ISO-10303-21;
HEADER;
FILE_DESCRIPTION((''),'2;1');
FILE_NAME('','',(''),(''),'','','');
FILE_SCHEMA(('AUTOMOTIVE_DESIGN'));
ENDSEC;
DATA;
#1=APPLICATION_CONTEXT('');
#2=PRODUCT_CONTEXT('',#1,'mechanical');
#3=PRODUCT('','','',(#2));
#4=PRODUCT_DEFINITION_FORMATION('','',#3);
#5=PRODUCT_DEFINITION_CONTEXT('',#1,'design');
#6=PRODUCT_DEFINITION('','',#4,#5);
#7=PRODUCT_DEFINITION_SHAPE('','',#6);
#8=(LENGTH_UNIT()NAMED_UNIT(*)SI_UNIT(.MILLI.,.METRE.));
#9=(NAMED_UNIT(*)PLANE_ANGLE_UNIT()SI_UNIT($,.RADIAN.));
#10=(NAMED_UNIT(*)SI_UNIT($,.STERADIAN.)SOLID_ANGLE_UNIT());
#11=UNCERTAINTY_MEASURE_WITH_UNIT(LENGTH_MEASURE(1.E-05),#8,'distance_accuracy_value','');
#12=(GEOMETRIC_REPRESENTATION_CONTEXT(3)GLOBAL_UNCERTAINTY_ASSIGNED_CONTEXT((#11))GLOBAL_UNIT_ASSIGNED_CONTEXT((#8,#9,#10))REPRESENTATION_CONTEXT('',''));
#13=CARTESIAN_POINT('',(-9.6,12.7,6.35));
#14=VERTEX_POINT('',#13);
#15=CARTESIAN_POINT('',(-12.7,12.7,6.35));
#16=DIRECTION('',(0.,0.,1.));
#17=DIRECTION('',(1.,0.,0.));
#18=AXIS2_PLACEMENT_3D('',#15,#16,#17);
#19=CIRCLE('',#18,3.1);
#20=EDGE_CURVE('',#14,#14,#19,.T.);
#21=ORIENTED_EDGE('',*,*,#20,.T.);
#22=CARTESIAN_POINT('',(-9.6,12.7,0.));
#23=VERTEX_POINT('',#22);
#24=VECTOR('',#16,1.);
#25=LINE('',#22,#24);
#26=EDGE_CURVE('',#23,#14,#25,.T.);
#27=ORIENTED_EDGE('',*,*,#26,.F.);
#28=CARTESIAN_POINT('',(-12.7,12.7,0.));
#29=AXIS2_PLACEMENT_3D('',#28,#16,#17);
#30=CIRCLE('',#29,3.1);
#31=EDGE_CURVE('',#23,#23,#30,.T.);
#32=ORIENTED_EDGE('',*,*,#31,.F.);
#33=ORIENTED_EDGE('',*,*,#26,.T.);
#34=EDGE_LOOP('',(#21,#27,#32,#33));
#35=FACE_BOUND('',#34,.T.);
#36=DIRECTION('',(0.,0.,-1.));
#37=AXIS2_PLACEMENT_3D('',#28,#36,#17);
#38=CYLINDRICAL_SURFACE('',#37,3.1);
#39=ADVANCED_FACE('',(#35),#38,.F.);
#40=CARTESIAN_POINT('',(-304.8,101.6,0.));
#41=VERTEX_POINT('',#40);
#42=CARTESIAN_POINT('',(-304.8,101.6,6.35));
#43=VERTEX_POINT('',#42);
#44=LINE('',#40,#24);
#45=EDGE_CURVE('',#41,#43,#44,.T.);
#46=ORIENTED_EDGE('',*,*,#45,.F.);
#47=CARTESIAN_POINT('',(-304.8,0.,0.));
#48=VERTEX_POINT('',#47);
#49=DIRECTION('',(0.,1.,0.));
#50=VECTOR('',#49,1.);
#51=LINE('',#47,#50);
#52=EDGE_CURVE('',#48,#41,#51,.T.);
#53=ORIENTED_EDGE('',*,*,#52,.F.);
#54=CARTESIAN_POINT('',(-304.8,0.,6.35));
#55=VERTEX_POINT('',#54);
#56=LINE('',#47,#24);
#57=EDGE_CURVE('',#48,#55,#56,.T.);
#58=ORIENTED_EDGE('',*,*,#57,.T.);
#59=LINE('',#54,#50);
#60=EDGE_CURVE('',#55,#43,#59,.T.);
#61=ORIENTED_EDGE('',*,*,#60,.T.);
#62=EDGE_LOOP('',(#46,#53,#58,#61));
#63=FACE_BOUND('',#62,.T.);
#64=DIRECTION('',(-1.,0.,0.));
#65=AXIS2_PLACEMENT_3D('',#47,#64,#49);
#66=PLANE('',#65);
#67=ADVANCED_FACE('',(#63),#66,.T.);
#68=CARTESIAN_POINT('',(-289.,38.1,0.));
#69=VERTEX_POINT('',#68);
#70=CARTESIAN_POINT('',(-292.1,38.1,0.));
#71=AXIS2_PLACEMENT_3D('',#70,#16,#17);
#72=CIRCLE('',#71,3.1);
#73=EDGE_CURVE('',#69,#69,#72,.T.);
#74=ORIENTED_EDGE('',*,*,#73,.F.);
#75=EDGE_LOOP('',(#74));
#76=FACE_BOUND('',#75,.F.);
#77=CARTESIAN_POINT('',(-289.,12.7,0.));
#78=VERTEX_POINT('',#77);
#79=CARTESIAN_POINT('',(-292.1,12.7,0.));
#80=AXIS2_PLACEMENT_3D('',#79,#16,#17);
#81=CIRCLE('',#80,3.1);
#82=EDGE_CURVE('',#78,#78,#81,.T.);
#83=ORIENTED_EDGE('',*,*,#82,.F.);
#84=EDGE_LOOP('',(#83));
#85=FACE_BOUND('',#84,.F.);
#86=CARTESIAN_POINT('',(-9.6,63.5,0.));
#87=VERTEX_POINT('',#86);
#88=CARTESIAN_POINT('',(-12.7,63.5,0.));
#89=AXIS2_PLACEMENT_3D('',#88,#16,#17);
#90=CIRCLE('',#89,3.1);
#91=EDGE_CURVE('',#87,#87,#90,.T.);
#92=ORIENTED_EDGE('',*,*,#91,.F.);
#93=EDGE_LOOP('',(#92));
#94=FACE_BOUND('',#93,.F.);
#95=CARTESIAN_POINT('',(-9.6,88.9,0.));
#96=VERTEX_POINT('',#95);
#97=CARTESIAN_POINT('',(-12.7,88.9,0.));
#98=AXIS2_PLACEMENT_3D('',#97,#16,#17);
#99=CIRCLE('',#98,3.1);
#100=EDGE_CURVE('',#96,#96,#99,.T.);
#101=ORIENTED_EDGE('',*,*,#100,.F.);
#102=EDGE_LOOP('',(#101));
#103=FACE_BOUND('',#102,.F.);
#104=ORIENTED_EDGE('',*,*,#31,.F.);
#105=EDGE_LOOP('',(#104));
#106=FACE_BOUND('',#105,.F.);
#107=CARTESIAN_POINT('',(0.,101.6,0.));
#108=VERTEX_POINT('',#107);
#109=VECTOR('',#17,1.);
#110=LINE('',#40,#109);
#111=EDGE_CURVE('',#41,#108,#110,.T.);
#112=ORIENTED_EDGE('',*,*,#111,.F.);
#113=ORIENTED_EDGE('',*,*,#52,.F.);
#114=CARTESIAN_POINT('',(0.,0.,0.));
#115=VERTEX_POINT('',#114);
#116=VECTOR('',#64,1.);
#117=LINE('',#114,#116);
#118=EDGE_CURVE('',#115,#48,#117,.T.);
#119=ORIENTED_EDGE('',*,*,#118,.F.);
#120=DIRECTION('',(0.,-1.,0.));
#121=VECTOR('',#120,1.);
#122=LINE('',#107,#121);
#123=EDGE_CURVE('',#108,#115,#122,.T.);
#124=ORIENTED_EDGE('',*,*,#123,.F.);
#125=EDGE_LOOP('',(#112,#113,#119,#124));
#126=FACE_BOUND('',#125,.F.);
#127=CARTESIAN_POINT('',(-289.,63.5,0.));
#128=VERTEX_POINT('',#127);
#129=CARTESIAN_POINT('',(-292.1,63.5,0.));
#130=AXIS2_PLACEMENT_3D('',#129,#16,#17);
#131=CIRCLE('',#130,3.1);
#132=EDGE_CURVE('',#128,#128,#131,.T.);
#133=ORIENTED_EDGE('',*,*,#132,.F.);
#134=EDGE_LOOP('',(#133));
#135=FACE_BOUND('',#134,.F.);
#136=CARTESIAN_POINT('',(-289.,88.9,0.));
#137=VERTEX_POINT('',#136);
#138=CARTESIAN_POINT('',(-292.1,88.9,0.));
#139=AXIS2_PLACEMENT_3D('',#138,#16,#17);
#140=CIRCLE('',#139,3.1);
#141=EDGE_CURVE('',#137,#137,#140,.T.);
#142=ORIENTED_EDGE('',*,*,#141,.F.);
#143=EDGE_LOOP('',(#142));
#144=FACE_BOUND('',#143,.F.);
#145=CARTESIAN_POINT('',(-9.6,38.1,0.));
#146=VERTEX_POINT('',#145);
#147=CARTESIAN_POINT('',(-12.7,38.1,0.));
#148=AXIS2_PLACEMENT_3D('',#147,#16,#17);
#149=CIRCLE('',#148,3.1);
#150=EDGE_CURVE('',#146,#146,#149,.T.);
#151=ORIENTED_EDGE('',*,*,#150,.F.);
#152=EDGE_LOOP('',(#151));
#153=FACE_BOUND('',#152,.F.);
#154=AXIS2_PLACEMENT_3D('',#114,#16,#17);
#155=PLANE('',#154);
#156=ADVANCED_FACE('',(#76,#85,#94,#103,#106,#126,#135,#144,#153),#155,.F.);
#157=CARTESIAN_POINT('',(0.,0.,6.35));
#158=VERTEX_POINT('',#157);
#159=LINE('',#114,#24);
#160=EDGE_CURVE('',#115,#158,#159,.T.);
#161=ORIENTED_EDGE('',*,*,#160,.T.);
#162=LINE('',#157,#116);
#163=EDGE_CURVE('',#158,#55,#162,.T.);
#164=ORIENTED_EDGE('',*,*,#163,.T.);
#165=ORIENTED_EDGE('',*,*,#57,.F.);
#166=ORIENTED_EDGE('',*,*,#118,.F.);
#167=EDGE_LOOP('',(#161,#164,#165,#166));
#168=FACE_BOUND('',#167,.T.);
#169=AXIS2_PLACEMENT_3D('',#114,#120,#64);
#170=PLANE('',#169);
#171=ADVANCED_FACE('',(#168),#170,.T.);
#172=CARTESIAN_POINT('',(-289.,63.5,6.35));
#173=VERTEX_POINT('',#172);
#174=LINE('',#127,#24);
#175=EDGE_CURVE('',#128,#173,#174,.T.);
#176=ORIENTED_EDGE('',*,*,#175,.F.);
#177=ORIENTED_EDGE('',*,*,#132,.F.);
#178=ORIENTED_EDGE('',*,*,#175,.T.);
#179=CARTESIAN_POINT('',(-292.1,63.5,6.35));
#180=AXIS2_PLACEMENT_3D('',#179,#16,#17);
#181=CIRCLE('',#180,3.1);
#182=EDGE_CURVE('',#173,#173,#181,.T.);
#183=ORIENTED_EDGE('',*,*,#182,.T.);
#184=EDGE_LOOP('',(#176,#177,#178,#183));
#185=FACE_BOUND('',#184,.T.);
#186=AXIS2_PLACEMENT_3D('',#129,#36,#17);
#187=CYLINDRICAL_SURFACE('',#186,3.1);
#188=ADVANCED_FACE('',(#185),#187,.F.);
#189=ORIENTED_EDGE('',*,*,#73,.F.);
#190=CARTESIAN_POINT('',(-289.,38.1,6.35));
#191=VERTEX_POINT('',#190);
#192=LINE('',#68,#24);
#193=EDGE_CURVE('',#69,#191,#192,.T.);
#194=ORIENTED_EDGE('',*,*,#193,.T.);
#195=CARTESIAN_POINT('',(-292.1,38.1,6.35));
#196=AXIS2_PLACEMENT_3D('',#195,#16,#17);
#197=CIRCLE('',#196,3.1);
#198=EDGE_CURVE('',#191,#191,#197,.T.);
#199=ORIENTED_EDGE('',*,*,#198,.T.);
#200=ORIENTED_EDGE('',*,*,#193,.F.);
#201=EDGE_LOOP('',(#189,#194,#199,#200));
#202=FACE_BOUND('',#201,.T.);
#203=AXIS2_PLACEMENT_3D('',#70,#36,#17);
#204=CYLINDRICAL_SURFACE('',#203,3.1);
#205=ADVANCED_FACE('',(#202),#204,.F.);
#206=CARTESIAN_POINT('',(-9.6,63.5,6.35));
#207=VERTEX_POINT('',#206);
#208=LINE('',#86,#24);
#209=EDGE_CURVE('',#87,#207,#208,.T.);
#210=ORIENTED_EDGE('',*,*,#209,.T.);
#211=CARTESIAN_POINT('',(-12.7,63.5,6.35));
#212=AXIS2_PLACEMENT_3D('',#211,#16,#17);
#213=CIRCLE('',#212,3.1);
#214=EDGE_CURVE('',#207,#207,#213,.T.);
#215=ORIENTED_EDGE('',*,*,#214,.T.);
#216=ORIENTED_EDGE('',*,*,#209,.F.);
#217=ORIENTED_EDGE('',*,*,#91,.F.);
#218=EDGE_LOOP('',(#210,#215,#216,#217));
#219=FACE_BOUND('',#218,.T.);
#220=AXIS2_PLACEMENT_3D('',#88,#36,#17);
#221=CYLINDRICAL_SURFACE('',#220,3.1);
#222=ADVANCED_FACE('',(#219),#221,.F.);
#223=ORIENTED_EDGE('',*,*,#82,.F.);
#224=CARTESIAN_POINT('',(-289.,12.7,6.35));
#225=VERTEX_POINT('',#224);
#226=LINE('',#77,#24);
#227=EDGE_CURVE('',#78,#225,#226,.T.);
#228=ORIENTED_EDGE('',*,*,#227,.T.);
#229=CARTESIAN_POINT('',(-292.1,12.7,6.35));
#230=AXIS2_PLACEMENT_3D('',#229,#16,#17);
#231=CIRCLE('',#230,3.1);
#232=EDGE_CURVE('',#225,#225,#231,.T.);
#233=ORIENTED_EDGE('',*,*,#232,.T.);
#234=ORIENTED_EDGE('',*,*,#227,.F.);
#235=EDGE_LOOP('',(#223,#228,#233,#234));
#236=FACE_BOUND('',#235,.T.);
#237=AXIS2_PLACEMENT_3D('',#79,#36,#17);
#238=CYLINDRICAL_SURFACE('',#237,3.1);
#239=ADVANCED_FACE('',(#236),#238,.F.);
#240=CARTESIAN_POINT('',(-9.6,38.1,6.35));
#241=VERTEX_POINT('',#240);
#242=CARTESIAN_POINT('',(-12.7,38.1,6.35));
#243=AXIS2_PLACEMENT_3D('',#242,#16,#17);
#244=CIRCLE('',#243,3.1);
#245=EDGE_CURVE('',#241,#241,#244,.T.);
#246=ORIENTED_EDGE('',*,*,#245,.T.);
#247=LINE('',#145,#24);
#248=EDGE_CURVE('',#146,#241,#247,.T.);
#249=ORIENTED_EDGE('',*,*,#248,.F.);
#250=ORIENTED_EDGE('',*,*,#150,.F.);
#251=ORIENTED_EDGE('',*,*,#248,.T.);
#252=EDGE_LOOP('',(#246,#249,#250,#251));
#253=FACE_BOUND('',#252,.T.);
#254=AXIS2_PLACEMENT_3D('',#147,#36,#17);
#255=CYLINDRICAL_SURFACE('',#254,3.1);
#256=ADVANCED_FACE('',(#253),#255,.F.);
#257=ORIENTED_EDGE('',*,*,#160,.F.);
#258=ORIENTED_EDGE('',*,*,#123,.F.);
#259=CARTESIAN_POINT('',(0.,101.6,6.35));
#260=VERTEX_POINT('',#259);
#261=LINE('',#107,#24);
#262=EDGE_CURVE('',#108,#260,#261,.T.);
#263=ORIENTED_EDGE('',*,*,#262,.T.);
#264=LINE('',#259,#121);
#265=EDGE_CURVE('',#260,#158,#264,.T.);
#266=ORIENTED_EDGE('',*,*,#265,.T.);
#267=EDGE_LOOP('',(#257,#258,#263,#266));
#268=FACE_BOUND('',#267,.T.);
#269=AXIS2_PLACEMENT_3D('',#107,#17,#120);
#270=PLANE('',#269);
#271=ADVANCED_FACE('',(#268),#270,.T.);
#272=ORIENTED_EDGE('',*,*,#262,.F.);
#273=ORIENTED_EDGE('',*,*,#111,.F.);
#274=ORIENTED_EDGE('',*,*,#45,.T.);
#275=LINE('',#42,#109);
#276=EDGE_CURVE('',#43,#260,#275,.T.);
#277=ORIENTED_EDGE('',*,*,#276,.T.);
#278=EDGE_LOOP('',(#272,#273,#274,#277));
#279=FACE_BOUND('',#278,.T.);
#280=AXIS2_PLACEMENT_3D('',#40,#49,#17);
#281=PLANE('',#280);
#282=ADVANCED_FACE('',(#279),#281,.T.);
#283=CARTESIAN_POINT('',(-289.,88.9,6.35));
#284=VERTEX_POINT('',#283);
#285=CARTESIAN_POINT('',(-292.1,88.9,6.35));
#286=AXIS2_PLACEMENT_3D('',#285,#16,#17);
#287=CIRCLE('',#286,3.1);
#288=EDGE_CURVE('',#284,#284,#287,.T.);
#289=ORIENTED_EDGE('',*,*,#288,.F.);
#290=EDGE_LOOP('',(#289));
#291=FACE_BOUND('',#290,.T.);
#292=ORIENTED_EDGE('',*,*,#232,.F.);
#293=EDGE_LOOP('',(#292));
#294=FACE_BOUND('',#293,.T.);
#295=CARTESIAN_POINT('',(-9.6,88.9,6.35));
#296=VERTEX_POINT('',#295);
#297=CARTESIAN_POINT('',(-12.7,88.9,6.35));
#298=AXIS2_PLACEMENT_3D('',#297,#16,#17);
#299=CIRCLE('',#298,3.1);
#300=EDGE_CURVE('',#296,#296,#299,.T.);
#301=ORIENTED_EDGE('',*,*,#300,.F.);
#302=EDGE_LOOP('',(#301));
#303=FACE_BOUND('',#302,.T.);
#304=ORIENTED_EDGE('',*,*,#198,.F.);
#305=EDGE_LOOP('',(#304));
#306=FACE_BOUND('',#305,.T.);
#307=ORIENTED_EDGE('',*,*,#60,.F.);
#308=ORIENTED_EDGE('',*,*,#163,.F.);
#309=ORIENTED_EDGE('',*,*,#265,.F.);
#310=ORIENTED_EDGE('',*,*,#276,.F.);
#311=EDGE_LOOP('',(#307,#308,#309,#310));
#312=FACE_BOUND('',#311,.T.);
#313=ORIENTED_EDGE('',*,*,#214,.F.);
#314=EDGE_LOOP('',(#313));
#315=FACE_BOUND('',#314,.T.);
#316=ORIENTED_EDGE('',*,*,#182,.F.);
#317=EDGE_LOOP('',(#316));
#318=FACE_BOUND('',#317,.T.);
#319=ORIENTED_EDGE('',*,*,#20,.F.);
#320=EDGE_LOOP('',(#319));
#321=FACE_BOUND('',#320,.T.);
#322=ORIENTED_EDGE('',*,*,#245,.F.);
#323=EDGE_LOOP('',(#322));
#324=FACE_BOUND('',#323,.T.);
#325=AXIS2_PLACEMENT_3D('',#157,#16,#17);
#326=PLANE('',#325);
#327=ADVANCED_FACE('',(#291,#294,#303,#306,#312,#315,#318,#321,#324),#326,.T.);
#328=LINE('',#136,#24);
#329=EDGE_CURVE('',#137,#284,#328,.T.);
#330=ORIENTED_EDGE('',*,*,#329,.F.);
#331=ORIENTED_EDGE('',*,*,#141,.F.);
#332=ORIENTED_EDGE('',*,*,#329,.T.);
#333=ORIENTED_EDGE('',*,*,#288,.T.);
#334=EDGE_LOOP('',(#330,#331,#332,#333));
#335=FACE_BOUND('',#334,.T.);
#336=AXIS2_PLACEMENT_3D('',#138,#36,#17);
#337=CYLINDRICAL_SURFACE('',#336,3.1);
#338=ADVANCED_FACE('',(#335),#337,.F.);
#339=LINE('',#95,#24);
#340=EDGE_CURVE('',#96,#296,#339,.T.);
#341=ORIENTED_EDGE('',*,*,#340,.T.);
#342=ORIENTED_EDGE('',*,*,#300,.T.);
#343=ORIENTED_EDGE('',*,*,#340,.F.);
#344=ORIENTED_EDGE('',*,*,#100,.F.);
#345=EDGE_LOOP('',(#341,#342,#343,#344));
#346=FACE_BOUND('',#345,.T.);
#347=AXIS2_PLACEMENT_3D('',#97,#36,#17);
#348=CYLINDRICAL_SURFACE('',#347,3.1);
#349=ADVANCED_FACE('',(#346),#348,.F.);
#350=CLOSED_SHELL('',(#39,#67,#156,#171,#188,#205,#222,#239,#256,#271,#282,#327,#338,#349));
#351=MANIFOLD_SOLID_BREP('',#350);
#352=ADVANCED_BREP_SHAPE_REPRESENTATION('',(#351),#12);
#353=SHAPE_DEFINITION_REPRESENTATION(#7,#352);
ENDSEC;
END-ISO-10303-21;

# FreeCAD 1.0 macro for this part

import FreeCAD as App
import Part
import Sketcher
from FreeCAD import Vector
Q = App.Units.Quantity


def add_polygon(sketch, points):
    """Adds a closed chain of lines whose ends are joined by coincident constraints."""
    first, n = sketch.GeometryCount, len(points)
    for a, b in zip(points, points[1:] + points[:1]):
        sketch.addGeometry(Part.LineSegment(App.Vector(*a, 0), App.Vector(*b, 0)), False)
    for i in range(n):
        sketch.addConstraint(Sketcher.Constraint("Coincident", first + i, 2, first + (i + 1) % n, 1))

doc = App.newDocument("Part")
body = doc.addObject("PartDesign::Body", "Body")

# Sketch on XY plane
sketch1 = doc.addObject("Sketcher::SketchObject", "Sketch")
body.addObject(sketch1)
sketch1.AttachmentSupport = (doc.XY_Plane, [""])
sketch1.MapMode = "FlatFace"
add_polygon(sketch1, [(-304.8, 0), (0, 0), (0, 101.6), (-304.8, 101.6)])  # lines 0-3
sketch1.addGeometry(Part.Circle(Vector(-292.1, 12.7, 0), Vector(0, 0, 1), 3.1), False)  # 4
sketch1.addGeometry(Part.Circle(Vector(-292.1, 38.1, 0), Vector(0, 0, 1), 3.1), False)  # 5
sketch1.addGeometry(Part.Circle(Vector(-12.7, 12.7, 0), Vector(0, 0, 1), 3.1), False)  # 6
sketch1.addGeometry(Part.Circle(Vector(-12.7, 38.1, 0), Vector(0, 0, 1), 3.1), False)  # 7
sketch1.addGeometry(Part.Circle(Vector(-292.1, 63.5, 0), Vector(0, 0, 1), 3.1), False)  # 8
sketch1.addGeometry(Part.Circle(Vector(-292.1, 88.9, 0), Vector(0, 0, 1), 3.1), False)  # 9
sketch1.addGeometry(Part.Circle(Vector(-12.7, 63.5, 0), Vector(0, 0, 1), 3.1), False)  # 10
sketch1.addGeometry(Part.Circle(Vector(-12.7, 88.9, 0), Vector(0, 0, 1), 3.1), False)  # 11
sketch1.addConstraint(Sketcher.Constraint("Horizontal", 0))
sketch1.addConstraint(Sketcher.Constraint("Vertical", 1))
sketch1.addConstraint(Sketcher.Constraint("Horizontal", 2))
sketch1.addConstraint(Sketcher.Constraint("Vertical", 3))
sketch1.addConstraint(Sketcher.Constraint("Coincident", 0, 2, -1, 1))
sketch1.addConstraint(Sketcher.Constraint("Equal", 4, 5))
sketch1.addConstraint(Sketcher.Constraint("Equal", 5, 6))
sketch1.addConstraint(Sketcher.Constraint("Equal", 6, 7))
sketch1.addConstraint(Sketcher.Constraint("Equal", 7, 8))
sketch1.addConstraint(Sketcher.Constraint("Equal", 8, 9))
sketch1.addConstraint(Sketcher.Constraint("Equal", 9, 10))
sketch1.addConstraint(Sketcher.Constraint("Equal", 10, 11))
sketch1.addConstraint(Sketcher.Constraint("Horizontal", 4, 3, 6, 3))
sketch1.addConstraint(Sketcher.Constraint("Horizontal", 5, 3, 7, 3))
sketch1.addConstraint(Sketcher.Constraint("Horizontal", 8, 3, 10, 3))
sketch1.addConstraint(Sketcher.Constraint("Horizontal", 9, 3, 11, 3))
sketch1.addConstraint(Sketcher.Constraint("Vertical", 4, 3, 5, 3))
sketch1.addConstraint(Sketcher.Constraint("Vertical", 6, 3, 7, 3))
sketch1.addConstraint(Sketcher.Constraint("Vertical", 5, 3, 8, 3))
sketch1.addConstraint(Sketcher.Constraint("Vertical", 8, 3, 9, 3))
sketch1.addConstraint(Sketcher.Constraint("Vertical", 7, 3, 10, 3))
sketch1.addConstraint(Sketcher.Constraint("Vertical", 10, 3, 11, 3))
sketch1.addConstraint(Sketcher.Constraint("DistanceX", 0, 1, 0, 2, Q("12 in")))
sketch1.addConstraint(Sketcher.Constraint("DistanceY", 1, 1, 1, 2, Q("4 in")))
sketch1.addConstraint(Sketcher.Constraint("DistanceY", 4, 3, 5, 3, Q("1 in")))
sketch1.addConstraint(Sketcher.Constraint("DistanceY", 5, 3, 8, 3, Q("1 in")))
sketch1.addConstraint(Sketcher.Constraint("DistanceY", 8, 3, 9, 3, Q("1 in")))
sketch1.addConstraint(Sketcher.Constraint("Diameter", 4, Q("0.2441 in")))
sketch1.addConstraint(Sketcher.Constraint("DistanceY", -1, 1, 4, 3, Q("0.5 in")))
sketch1.addConstraint(Sketcher.Constraint("DistanceX", 6, 3, -1, 1, Q("0.5 in")))
sketch1.addConstraint(Sketcher.Constraint("DistanceX", 2, 2, 9, 3, Q("0.5 in")))
pad1 = doc.addObject("PartDesign::Pad", "Pad")
body.addObject(pad1)
pad1.Profile = sketch1
pad1.Length = Q("0.25 in")

doc.recompute()
